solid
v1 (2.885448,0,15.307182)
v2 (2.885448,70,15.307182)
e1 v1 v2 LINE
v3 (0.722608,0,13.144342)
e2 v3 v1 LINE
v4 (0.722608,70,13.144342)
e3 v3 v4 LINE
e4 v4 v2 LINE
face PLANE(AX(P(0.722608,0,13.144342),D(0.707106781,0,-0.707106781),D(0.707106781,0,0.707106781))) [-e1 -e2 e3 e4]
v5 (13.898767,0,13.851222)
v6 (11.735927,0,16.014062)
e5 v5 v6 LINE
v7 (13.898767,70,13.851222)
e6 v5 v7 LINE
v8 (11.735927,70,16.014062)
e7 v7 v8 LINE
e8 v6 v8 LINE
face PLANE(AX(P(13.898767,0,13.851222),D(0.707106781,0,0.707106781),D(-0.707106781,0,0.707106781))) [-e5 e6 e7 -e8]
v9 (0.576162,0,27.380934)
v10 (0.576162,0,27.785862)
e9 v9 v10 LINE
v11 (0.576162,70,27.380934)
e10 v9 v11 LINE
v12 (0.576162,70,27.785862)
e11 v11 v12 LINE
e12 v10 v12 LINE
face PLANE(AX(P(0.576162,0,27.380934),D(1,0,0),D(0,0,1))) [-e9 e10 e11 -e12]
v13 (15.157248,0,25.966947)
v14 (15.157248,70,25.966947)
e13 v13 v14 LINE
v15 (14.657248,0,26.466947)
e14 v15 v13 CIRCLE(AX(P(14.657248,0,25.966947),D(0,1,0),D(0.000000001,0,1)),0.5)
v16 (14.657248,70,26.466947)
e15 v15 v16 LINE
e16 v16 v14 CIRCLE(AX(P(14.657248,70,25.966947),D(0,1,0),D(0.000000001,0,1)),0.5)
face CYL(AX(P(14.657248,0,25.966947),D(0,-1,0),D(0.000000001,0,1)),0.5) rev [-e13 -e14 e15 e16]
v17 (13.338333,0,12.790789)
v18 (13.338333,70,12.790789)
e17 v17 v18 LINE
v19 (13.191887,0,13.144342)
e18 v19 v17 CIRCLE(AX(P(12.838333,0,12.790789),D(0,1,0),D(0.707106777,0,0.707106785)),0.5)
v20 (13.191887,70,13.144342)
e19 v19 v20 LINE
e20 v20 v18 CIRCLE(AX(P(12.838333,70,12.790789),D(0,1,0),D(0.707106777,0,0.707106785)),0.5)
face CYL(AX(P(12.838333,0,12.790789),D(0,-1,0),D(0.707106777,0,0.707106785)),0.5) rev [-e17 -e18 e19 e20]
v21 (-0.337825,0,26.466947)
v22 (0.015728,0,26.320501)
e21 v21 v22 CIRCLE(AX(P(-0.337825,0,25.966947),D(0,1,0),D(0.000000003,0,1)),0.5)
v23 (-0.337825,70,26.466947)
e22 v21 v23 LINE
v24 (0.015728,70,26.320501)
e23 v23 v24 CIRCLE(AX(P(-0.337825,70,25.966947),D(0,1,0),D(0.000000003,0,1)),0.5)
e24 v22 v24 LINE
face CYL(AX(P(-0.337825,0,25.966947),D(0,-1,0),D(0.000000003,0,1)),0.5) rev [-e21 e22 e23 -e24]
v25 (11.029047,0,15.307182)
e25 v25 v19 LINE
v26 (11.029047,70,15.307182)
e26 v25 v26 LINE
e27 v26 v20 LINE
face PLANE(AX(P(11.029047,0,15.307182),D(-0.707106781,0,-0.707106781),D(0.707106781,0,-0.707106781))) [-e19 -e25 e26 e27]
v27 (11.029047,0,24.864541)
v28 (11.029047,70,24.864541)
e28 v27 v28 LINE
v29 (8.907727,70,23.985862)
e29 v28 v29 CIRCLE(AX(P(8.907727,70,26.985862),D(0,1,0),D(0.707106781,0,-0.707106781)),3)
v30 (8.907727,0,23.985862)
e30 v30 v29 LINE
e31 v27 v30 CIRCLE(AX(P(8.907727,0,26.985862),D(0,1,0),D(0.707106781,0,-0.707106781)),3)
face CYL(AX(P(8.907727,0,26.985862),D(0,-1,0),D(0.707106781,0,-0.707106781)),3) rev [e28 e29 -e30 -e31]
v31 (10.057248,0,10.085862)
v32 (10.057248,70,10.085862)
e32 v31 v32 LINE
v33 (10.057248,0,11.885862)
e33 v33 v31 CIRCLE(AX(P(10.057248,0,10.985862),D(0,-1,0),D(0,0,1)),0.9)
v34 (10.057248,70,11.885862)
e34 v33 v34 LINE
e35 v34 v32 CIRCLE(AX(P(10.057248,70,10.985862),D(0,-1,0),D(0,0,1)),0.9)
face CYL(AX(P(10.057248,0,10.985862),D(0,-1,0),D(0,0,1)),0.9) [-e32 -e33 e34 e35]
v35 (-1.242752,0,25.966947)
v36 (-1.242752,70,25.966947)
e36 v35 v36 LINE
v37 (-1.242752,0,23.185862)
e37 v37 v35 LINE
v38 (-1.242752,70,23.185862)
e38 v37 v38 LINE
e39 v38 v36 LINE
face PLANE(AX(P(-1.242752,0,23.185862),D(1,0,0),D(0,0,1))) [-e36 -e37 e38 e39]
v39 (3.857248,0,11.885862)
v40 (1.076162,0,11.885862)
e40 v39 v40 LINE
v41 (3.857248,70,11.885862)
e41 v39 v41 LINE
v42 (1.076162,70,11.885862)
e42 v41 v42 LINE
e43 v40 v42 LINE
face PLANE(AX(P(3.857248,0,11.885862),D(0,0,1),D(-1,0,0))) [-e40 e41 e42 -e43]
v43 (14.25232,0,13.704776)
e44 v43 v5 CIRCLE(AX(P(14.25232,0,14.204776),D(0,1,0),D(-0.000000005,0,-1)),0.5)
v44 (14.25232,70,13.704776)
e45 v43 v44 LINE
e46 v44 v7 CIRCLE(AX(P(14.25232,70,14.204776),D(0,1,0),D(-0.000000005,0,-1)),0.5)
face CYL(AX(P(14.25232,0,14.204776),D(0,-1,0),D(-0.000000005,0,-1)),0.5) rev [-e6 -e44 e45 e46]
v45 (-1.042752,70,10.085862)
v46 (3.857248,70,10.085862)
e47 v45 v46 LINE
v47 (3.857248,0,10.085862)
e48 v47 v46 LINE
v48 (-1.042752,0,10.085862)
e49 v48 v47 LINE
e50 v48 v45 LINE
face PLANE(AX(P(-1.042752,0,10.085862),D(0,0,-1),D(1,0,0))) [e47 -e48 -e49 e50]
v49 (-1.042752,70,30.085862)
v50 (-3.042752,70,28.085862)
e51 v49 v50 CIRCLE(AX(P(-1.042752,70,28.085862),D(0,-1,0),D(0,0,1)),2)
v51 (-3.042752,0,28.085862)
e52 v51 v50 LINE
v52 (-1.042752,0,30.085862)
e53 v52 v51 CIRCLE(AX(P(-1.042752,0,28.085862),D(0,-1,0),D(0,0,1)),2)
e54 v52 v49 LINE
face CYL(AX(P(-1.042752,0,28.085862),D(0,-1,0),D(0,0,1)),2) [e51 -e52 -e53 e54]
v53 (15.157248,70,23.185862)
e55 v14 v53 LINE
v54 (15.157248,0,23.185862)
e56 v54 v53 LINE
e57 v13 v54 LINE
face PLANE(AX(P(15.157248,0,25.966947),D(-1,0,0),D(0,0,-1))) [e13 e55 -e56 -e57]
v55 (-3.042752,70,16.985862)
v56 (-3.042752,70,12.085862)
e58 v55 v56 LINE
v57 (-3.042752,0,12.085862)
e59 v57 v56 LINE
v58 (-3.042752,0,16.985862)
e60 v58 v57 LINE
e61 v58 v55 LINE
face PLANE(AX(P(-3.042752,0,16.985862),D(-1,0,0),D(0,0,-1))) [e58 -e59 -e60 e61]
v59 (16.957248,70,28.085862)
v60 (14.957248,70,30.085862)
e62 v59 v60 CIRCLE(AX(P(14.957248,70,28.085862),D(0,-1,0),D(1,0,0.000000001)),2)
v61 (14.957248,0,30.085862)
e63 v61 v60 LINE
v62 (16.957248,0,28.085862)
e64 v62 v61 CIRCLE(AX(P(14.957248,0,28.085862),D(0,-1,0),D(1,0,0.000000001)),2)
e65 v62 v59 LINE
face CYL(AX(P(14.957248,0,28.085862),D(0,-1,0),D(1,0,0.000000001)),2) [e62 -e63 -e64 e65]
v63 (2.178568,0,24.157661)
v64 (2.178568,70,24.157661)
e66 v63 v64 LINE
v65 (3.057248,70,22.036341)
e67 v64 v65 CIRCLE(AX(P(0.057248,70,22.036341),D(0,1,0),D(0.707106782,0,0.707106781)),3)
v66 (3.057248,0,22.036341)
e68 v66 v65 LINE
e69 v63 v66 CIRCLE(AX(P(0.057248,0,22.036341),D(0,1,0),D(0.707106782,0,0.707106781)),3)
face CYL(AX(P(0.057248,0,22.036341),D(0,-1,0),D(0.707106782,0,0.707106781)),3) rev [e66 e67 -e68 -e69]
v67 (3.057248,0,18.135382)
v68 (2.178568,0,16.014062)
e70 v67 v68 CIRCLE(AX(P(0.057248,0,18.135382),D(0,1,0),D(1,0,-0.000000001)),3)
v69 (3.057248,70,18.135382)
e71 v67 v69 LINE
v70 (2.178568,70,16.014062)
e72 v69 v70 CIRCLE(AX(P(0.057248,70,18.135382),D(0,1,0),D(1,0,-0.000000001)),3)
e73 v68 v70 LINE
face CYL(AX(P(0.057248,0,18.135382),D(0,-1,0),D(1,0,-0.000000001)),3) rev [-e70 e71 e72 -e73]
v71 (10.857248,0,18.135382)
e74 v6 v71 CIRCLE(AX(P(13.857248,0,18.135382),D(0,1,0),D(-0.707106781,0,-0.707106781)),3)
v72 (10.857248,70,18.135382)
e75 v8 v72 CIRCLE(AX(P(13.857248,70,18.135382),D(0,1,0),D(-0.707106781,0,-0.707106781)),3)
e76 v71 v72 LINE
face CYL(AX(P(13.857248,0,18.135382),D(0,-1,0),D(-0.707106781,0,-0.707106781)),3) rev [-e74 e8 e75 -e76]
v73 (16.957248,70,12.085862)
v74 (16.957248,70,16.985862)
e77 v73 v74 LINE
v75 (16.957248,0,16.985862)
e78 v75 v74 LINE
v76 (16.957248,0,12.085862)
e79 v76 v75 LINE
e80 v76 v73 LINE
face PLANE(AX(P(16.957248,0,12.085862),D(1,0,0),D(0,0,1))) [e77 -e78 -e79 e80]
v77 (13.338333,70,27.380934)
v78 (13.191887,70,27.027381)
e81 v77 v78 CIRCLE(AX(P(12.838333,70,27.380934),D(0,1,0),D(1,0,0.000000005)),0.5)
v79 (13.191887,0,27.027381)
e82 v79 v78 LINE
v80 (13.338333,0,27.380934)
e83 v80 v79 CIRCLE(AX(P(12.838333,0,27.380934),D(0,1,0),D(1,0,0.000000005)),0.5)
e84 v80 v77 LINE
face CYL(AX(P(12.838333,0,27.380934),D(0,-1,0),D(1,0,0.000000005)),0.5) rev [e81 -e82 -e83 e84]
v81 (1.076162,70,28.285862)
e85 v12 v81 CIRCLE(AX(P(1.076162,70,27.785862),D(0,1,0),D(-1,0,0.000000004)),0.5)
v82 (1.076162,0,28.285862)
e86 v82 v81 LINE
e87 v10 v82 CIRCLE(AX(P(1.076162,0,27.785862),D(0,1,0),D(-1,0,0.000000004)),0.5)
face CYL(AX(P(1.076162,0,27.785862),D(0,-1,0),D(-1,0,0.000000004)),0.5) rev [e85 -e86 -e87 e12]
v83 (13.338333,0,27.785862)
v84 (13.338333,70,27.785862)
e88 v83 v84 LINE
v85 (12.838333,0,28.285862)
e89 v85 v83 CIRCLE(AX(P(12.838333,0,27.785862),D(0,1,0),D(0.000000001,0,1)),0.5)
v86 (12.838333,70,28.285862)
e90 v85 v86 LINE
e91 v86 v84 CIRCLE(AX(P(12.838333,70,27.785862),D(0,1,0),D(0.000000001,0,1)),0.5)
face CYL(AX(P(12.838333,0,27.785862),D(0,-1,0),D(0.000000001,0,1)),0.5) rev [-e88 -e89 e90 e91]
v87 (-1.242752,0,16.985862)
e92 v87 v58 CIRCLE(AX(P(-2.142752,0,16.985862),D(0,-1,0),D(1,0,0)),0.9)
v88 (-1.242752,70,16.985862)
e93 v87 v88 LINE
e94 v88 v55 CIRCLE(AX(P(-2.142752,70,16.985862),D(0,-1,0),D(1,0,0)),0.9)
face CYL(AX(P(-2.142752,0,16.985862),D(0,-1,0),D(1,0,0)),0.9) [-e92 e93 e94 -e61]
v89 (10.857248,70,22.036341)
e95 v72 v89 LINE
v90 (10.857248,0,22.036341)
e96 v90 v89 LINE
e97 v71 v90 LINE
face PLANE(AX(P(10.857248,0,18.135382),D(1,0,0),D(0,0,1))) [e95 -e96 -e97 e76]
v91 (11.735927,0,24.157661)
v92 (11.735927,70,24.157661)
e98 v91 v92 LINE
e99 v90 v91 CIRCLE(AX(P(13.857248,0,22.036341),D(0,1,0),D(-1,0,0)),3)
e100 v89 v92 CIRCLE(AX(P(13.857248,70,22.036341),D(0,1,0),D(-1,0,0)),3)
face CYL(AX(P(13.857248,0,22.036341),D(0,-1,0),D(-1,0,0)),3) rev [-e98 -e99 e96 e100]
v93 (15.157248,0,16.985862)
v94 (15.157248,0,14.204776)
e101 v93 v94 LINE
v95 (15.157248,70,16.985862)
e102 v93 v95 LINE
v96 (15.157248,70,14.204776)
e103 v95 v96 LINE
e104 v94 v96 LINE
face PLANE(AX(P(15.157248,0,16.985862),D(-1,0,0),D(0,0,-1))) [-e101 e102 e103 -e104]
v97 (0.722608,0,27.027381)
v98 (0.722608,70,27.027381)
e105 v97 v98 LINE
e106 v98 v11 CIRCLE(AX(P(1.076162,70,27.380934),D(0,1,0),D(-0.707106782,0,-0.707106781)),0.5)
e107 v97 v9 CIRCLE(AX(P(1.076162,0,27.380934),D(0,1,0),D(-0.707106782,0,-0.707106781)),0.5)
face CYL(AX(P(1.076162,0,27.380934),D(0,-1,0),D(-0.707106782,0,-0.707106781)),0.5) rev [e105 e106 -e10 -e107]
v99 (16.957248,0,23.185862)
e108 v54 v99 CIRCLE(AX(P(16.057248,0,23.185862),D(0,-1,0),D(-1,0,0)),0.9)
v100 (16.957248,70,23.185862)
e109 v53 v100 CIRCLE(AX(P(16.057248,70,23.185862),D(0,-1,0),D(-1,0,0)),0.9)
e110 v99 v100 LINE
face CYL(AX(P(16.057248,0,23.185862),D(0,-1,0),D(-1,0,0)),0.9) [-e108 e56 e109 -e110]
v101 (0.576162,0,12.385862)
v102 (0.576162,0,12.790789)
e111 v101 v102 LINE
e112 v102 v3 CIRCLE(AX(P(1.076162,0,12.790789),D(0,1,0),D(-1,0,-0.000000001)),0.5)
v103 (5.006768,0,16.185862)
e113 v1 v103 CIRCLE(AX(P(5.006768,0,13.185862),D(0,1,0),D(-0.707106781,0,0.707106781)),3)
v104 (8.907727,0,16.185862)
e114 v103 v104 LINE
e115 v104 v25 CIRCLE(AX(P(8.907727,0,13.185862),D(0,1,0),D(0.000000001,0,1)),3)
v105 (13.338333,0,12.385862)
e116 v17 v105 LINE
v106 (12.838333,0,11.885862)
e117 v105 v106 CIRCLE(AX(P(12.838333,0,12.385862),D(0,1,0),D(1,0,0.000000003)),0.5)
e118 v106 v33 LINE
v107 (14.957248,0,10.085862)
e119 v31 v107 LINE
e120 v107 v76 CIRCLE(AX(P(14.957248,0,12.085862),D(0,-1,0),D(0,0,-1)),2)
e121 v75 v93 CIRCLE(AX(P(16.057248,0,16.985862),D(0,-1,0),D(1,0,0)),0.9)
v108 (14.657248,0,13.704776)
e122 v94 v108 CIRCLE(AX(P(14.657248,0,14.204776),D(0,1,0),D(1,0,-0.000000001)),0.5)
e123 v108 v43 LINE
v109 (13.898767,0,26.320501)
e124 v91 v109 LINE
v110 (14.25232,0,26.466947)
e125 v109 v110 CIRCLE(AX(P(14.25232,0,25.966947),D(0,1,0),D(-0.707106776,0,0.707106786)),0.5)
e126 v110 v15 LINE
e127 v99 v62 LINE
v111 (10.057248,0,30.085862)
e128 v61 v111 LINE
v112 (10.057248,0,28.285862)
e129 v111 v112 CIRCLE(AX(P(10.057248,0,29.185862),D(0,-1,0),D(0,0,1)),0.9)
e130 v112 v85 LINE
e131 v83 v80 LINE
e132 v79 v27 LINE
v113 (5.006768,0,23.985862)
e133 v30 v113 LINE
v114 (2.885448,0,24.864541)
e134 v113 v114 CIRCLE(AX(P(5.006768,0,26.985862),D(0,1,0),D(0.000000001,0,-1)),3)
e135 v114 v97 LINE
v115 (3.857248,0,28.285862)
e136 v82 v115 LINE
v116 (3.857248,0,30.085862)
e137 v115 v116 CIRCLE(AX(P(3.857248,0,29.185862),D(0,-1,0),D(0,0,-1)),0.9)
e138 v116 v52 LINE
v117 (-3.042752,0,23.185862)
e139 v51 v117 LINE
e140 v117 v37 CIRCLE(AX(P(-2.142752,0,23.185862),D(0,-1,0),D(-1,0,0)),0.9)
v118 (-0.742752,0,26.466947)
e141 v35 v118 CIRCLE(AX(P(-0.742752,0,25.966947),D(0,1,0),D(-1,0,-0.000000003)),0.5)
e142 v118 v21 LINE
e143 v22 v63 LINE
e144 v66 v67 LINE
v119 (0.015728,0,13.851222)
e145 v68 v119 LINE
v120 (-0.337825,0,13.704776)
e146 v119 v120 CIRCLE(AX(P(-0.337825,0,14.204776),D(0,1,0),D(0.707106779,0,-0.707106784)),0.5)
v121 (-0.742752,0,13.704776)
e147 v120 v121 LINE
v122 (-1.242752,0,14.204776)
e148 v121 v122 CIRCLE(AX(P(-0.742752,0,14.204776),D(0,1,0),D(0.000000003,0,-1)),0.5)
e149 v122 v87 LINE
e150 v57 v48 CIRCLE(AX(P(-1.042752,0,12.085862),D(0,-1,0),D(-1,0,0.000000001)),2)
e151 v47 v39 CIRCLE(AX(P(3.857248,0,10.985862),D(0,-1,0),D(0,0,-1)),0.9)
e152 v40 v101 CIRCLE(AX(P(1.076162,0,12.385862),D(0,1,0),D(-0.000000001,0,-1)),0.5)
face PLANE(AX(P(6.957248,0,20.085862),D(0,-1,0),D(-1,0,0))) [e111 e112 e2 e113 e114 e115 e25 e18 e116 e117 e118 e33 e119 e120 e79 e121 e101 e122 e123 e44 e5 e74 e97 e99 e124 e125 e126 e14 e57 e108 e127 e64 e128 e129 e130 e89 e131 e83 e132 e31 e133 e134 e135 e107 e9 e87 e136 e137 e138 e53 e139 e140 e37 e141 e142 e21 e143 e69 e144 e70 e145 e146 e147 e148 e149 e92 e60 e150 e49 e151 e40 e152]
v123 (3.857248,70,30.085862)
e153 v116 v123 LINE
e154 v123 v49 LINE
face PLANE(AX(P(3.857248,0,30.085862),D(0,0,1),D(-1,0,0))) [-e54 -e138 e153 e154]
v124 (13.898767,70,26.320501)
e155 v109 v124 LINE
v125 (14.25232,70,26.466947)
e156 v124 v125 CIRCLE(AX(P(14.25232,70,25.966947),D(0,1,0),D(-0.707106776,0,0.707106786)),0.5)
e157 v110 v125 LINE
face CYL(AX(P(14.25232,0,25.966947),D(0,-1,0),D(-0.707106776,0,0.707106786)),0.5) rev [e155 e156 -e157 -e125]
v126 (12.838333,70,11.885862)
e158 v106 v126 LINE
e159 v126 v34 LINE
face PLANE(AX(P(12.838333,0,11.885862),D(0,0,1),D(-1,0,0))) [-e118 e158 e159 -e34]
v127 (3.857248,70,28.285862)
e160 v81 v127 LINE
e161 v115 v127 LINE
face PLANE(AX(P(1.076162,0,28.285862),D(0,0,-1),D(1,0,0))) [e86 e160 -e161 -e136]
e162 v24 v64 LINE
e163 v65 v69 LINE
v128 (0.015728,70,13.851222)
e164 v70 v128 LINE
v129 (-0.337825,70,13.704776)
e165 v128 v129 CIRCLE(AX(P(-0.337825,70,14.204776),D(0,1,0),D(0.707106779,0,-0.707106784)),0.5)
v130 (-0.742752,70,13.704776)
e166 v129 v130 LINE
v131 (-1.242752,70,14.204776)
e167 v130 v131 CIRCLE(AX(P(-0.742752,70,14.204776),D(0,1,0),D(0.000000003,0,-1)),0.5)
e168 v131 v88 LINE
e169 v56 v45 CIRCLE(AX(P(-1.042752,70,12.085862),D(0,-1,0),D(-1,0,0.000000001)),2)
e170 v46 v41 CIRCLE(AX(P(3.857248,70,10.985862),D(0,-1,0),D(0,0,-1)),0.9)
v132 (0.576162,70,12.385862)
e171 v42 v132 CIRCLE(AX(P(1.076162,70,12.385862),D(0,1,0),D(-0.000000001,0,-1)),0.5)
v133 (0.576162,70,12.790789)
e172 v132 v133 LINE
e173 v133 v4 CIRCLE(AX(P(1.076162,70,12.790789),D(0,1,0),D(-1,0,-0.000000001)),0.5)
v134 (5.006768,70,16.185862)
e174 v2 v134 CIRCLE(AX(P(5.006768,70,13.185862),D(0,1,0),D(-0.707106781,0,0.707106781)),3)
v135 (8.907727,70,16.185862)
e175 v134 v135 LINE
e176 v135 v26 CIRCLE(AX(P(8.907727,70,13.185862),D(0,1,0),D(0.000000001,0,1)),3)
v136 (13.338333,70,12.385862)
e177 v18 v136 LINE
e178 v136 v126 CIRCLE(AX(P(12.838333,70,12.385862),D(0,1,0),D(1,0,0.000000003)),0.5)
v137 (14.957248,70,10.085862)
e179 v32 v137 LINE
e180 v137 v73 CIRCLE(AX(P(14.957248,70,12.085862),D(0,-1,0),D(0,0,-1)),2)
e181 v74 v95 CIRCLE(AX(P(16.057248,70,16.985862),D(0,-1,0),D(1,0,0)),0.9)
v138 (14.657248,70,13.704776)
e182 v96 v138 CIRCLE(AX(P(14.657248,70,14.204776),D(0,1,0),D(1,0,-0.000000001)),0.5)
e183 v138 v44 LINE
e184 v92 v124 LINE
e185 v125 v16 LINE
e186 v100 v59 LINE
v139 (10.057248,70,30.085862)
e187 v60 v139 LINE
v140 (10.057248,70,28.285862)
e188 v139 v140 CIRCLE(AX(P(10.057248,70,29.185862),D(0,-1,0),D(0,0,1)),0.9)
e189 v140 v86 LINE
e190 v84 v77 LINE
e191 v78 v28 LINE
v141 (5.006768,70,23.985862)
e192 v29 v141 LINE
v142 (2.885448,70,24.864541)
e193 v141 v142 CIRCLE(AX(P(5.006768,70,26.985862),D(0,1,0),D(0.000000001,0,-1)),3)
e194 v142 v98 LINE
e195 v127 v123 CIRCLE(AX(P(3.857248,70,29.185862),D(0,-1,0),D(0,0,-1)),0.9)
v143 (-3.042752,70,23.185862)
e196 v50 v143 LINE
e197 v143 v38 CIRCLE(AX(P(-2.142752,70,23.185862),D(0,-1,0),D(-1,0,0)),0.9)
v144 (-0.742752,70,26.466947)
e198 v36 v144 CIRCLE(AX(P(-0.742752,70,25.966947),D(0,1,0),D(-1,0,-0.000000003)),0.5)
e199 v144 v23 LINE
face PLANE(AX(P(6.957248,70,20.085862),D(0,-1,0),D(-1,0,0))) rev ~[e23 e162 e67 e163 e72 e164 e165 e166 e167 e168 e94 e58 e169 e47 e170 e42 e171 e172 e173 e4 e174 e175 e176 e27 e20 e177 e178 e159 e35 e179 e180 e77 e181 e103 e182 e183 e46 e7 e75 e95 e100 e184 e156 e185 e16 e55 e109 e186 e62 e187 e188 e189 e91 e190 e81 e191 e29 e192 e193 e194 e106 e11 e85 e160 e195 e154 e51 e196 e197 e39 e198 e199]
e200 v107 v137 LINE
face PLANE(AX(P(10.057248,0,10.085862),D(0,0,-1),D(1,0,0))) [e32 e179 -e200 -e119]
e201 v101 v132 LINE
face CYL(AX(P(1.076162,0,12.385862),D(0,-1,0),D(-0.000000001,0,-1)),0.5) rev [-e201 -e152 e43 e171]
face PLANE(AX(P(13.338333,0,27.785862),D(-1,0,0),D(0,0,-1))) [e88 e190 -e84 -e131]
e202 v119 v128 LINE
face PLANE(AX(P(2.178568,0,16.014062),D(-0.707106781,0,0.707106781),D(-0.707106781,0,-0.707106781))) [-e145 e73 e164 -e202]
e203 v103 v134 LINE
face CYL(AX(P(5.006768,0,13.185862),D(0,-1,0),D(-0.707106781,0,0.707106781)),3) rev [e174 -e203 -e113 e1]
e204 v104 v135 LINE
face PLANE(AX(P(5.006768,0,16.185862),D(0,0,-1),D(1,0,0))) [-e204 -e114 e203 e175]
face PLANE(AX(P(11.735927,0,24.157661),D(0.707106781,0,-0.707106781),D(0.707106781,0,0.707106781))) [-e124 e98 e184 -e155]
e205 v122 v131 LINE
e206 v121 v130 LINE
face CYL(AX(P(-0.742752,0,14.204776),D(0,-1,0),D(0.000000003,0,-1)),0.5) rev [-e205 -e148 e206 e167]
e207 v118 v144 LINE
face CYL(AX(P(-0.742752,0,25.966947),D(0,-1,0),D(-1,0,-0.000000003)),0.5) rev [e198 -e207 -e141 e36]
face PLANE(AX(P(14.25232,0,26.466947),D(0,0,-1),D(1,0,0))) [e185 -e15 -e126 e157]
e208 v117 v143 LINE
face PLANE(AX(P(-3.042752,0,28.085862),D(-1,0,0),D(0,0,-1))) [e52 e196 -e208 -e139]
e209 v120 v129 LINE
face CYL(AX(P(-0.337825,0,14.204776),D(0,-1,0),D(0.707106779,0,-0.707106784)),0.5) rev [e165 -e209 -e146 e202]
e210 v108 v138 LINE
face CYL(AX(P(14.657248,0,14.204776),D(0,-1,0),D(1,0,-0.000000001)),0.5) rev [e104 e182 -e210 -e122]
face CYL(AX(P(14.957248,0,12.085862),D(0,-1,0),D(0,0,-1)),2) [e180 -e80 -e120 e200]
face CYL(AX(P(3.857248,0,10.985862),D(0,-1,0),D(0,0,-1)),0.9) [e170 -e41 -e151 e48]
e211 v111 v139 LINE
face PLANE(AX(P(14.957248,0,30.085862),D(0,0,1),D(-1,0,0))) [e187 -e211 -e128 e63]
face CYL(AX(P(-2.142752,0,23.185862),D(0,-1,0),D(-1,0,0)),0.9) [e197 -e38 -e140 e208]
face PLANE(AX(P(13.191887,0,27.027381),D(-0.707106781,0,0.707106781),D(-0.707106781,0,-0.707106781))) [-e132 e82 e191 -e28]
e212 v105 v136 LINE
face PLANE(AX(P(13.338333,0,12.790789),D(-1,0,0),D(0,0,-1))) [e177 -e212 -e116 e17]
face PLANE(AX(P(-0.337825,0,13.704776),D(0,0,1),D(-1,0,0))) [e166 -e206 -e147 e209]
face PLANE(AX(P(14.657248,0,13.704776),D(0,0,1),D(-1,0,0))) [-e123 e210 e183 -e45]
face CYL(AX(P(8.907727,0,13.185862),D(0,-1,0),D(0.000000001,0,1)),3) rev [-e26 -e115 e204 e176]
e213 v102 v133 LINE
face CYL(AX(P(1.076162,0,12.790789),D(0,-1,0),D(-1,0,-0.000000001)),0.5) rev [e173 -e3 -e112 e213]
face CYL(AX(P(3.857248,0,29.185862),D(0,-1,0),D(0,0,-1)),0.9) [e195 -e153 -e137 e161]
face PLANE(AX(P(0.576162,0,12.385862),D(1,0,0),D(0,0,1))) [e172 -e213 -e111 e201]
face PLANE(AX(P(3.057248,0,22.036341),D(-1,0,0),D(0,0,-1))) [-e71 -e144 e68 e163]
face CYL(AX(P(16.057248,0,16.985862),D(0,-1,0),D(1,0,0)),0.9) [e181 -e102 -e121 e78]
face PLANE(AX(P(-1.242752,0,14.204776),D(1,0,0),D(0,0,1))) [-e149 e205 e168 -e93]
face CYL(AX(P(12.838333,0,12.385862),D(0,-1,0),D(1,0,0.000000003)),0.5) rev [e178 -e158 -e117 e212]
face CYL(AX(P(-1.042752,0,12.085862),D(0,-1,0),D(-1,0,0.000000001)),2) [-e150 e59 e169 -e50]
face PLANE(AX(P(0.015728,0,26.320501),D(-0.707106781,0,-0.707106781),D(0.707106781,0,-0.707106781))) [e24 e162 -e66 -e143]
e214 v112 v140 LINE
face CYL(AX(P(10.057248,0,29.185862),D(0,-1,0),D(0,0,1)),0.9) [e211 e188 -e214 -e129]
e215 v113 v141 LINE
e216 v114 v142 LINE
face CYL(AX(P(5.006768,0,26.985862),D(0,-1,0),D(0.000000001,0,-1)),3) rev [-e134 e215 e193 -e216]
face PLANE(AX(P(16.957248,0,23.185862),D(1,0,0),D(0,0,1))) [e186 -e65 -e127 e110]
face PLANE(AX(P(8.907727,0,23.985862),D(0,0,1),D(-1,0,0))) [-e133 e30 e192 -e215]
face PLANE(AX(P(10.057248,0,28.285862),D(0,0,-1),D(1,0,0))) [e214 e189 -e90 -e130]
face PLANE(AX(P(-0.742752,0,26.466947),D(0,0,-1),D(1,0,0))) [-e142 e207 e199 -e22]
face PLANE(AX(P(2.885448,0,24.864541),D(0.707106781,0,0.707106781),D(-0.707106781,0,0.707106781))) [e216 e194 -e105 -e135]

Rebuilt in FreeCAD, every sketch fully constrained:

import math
import FreeCAD as App
import Part
import Sketcher
Q = App.Units.Quantity

doc = App.newDocument("Part")
body = doc.addObject("PartDesign::Body", "Body")

# Sketch on XZ plane
sketch1 = body.newObject("Sketcher::SketchObject", "Sketch")
sketch1.AttachmentSupport = (doc.getObject("XZ_Plane"), [""])
sketch1.MapMode = "FlatFace"
sketch1.addGeometry(Part.LineSegment(App.Vector(3.86, 10.09, 0), App.Vector(-1.04, 10.09, 0)), False)
sketch1.addGeometry(Part.ArcOfCircle(Part.Circle(App.Vector(-1.04, 12.09, 0), App.Vector(0, 0, 1), 2), math.radians(180), math.radians(270)), False)
sketch1.addGeometry(Part.LineSegment(App.Vector(-3.04, 12.09, 0), App.Vector(-3.04, 16.99, 0)), False)
sketch1.addGeometry(Part.ArcOfCircle(Part.Circle(App.Vector(-2.14, 16.99, 0), App.Vector(0, 0, 1), 0.9), math.radians(0), math.radians(180)), False)
sketch1.addGeometry(Part.LineSegment(App.Vector(-1.24, 16.99, 0), App.Vector(-1.24, 14.2, 0)), False)
sketch1.addGeometry(Part.ArcOfCircle(Part.Circle(App.Vector(-0.74, 14.2, 0), App.Vector(0, 0, 1), 0.5), math.radians(180), math.radians(270)), False)
sketch1.addGeometry(Part.LineSegment(App.Vector(-0.74, 13.7, 0), App.Vector(-0.34, 13.7, 0)), False)
sketch1.addGeometry(Part.ArcOfCircle(Part.Circle(App.Vector(-0.34, 14.2, 0), App.Vector(0, 0, 1), 0.5), math.radians(-90), math.radians(-45)), False)
sketch1.addGeometry(Part.LineSegment(App.Vector(0.02, 13.85, 0), App.Vector(2.18, 16.01, 0)), False)
sketch1.addGeometry(Part.ArcOfCircle(Part.Circle(App.Vector(0.06, 18.14, 0), App.Vector(0, 0, 1), 3), math.radians(-45), math.radians(0)), False)
sketch1.addGeometry(Part.LineSegment(App.Vector(3.06, 18.14, 0), App.Vector(3.06, 22.04, 0)), False)
sketch1.addGeometry(Part.ArcOfCircle(Part.Circle(App.Vector(0.06, 22.04, 0), App.Vector(0, 0, 1), 3), math.radians(0), math.radians(45)), False)
sketch1.addGeometry(Part.LineSegment(App.Vector(2.18, 24.16, 0), App.Vector(0.02, 26.32, 0)), False)
sketch1.addGeometry(Part.ArcOfCircle(Part.Circle(App.Vector(-0.34, 25.97, 0), App.Vector(0, 0, 1), 0.5), math.radians(45), math.radians(90)), False)
sketch1.addGeometry(Part.LineSegment(App.Vector(-0.34, 26.47, 0), App.Vector(-0.74, 26.47, 0)), False)
sketch1.addGeometry(Part.ArcOfCircle(Part.Circle(App.Vector(-0.74, 25.97, 0), App.Vector(0, 0, 1), 0.5), math.radians(90), math.radians(180)), False)
sketch1.addGeometry(Part.LineSegment(App.Vector(-1.24, 25.97, 0), App.Vector(-1.24, 23.19, 0)), False)
sketch1.addGeometry(Part.ArcOfCircle(Part.Circle(App.Vector(-2.14, 23.19, 0), App.Vector(0, 0, 1), 0.9), math.radians(180), math.radians(360)), False)
sketch1.addGeometry(Part.LineSegment(App.Vector(-3.04, 23.19, 0), App.Vector(-3.04, 28.09, 0)), False)
sketch1.addGeometry(Part.ArcOfCircle(Part.Circle(App.Vector(-1.04, 28.09, 0), App.Vector(0, 0, 1), 2), math.radians(90), math.radians(180)), False)
sketch1.addGeometry(Part.LineSegment(App.Vector(-1.04, 30.09, 0), App.Vector(3.86, 30.09, 0)), False)
sketch1.addGeometry(Part.ArcOfCircle(Part.Circle(App.Vector(3.86, 29.19, 0), App.Vector(0, 0, 1), 0.9), math.radians(-90), math.radians(90)), False)
sketch1.addGeometry(Part.LineSegment(App.Vector(3.86, 28.29, 0), App.Vector(1.08, 28.29, 0)), False)
sketch1.addGeometry(Part.ArcOfCircle(Part.Circle(App.Vector(1.08, 27.79, 0), App.Vector(0, 0, 1), 0.5), math.radians(90), math.radians(180)), False)
sketch1.addGeometry(Part.LineSegment(App.Vector(0.58, 27.79, 0), App.Vector(0.58, 27.38, 0)), False)
sketch1.addGeometry(Part.ArcOfCircle(Part.Circle(App.Vector(1.08, 27.38, 0), App.Vector(0, 0, 1), 0.5), math.radians(-180), math.radians(-135)), False)
sketch1.addGeometry(Part.LineSegment(App.Vector(0.72, 27.03, 0), App.Vector(2.89, 24.86, 0)), False)
sketch1.addGeometry(Part.ArcOfCircle(Part.Circle(App.Vector(5.01, 26.99, 0), App.Vector(0, 0, 1), 3), math.radians(-135), math.radians(-90)), False)
sketch1.addGeometry(Part.LineSegment(App.Vector(5.01, 23.99, 0), App.Vector(8.91, 23.99, 0)), False)
sketch1.addGeometry(Part.ArcOfCircle(Part.Circle(App.Vector(8.91, 26.99, 0), App.Vector(0, 0, 1), 3), math.radians(-90), math.radians(-45)), False)
sketch1.addGeometry(Part.LineSegment(App.Vector(11.03, 24.86, 0), App.Vector(13.19, 27.03, 0)), False)
sketch1.addGeometry(Part.ArcOfCircle(Part.Circle(App.Vector(12.84, 27.38, 0), App.Vector(0, 0, 1), 0.5), math.radians(-45), math.radians(0)), False)
sketch1.addGeometry(Part.LineSegment(App.Vector(13.34, 27.38, 0), App.Vector(13.34, 27.79, 0)), False)
sketch1.addGeometry(Part.ArcOfCircle(Part.Circle(App.Vector(12.84, 27.79, 0), App.Vector(0, 0, 1), 0.5), math.radians(0), math.radians(90)), False)
sketch1.addGeometry(Part.LineSegment(App.Vector(12.84, 28.29, 0), App.Vector(10.06, 28.29, 0)), False)
sketch1.addGeometry(Part.ArcOfCircle(Part.Circle(App.Vector(10.06, 29.19, 0), App.Vector(0, 0, 1), 0.9), math.radians(90), math.radians(270)), False)
sketch1.addGeometry(Part.LineSegment(App.Vector(10.06, 30.09, 0), App.Vector(14.96, 30.09, 0)), False)
sketch1.addGeometry(Part.ArcOfCircle(Part.Circle(App.Vector(14.96, 28.09, 0), App.Vector(0, 0, 1), 2), math.radians(0), math.radians(90)), False)
sketch1.addGeometry(Part.LineSegment(App.Vector(16.96, 28.09, 0), App.Vector(16.96, 23.19, 0)), False)
sketch1.addGeometry(Part.ArcOfCircle(Part.Circle(App.Vector(16.06, 23.19, 0), App.Vector(0, 0, 1), 0.9), math.radians(180), math.radians(360)), False)
sketch1.addGeometry(Part.LineSegment(App.Vector(15.16, 23.19, 0), App.Vector(15.16, 25.97, 0)), False)
sketch1.addGeometry(Part.ArcOfCircle(Part.Circle(App.Vector(14.66, 25.97, 0), App.Vector(0, 0, 1), 0.5), math.radians(0), math.radians(90)), False)
sketch1.addGeometry(Part.LineSegment(App.Vector(14.66, 26.47, 0), App.Vector(14.25, 26.47, 0)), False)
sketch1.addGeometry(Part.ArcOfCircle(Part.Circle(App.Vector(14.25, 25.97, 0), App.Vector(0, 0, 1), 0.5), math.radians(90), math.radians(135)), False)
sketch1.addGeometry(Part.LineSegment(App.Vector(13.9, 26.32, 0), App.Vector(11.74, 24.16, 0)), False)
sketch1.addGeometry(Part.ArcOfCircle(Part.Circle(App.Vector(13.86, 22.04, 0), App.Vector(0, 0, 1), 3), math.radians(135), math.radians(180)), False)
sketch1.addGeometry(Part.LineSegment(App.Vector(10.86, 22.04, 0), App.Vector(10.86, 18.14, 0)), False)
sketch1.addGeometry(Part.ArcOfCircle(Part.Circle(App.Vector(13.86, 18.14, 0), App.Vector(0, 0, 1), 3), math.radians(180), math.radians(225)), False)
sketch1.addGeometry(Part.LineSegment(App.Vector(11.74, 16.01, 0), App.Vector(13.9, 13.85, 0)), False)
sketch1.addGeometry(Part.ArcOfCircle(Part.Circle(App.Vector(14.25, 14.2, 0), App.Vector(0, 0, 1), 0.5), math.radians(-135), math.radians(-90)), False)
sketch1.addGeometry(Part.LineSegment(App.Vector(14.25, 13.7, 0), App.Vector(14.66, 13.7, 0)), False)
sketch1.addGeometry(Part.ArcOfCircle(Part.Circle(App.Vector(14.66, 14.2, 0), App.Vector(0, 0, 1), 0.5), math.radians(-90), math.radians(0)), False)
sketch1.addGeometry(Part.LineSegment(App.Vector(15.16, 14.2, 0), App.Vector(15.16, 16.99, 0)), False)
sketch1.addGeometry(Part.ArcOfCircle(Part.Circle(App.Vector(16.06, 16.99, 0), App.Vector(0, 0, 1), 0.9), math.radians(0), math.radians(180)), False)
sketch1.addGeometry(Part.LineSegment(App.Vector(16.96, 16.99, 0), App.Vector(16.96, 12.09, 0)), False)
sketch1.addGeometry(Part.ArcOfCircle(Part.Circle(App.Vector(14.96, 12.09, 0), App.Vector(0, 0, 1), 2), math.radians(-90), math.radians(0)), False)
sketch1.addGeometry(Part.LineSegment(App.Vector(14.96, 10.09, 0), App.Vector(10.06, 10.09, 0)), False)
sketch1.addGeometry(Part.ArcOfCircle(Part.Circle(App.Vector(10.06, 10.99, 0), App.Vector(0, 0, 1), 0.9), math.radians(90), math.radians(270)), False)
sketch1.addGeometry(Part.LineSegment(App.Vector(10.06, 11.89, 0), App.Vector(12.84, 11.89, 0)), False)
sketch1.addGeometry(Part.ArcOfCircle(Part.Circle(App.Vector(12.84, 12.39, 0), App.Vector(0, 0, 1), 0.5), math.radians(-90), math.radians(0)), False)
sketch1.addGeometry(Part.LineSegment(App.Vector(13.34, 12.39, 0), App.Vector(13.34, 12.79, 0)), False)
sketch1.addGeometry(Part.ArcOfCircle(Part.Circle(App.Vector(12.84, 12.79, 0), App.Vector(0, 0, 1), 0.5), math.radians(0), math.radians(45)), False)
sketch1.addGeometry(Part.LineSegment(App.Vector(13.19, 13.14, 0), App.Vector(11.03, 15.31, 0)), False)
sketch1.addGeometry(Part.ArcOfCircle(Part.Circle(App.Vector(8.91, 13.19, 0), App.Vector(0, 0, 1), 3), math.radians(45), math.radians(90)), False)
sketch1.addGeometry(Part.LineSegment(App.Vector(8.91, 16.19, 0), App.Vector(5.01, 16.19, 0)), False)
sketch1.addGeometry(Part.ArcOfCircle(Part.Circle(App.Vector(5.01, 13.19, 0), App.Vector(0, 0, 1), 3), math.radians(90), math.radians(135)), False)
sketch1.addGeometry(Part.LineSegment(App.Vector(2.89, 15.31, 0), App.Vector(0.72, 13.14, 0)), False)
sketch1.addGeometry(Part.ArcOfCircle(Part.Circle(App.Vector(1.08, 12.79, 0), App.Vector(0, 0, 1), 0.5), math.radians(135), math.radians(180)), False)
sketch1.addGeometry(Part.LineSegment(App.Vector(0.58, 12.79, 0), App.Vector(0.58, 12.39, 0)), False)
sketch1.addGeometry(Part.ArcOfCircle(Part.Circle(App.Vector(1.08, 12.39, 0), App.Vector(0, 0, 1), 0.5), math.radians(180), math.radians(270)), False)
sketch1.addGeometry(Part.LineSegment(App.Vector(1.08, 11.89, 0), App.Vector(3.86, 11.89, 0)), False)
sketch1.addGeometry(Part.ArcOfCircle(Part.Circle(App.Vector(3.86, 10.99, 0), App.Vector(0, 0, 1), 0.9), math.radians(-90), math.radians(90)), False)
sketch1.addConstraint(Sketcher.Constraint("Tangent", 0, 2, 1, 2))
sketch1.addConstraint(Sketcher.Constraint("Tangent", 1, 1, 2, 1))
sketch1.addConstraint(Sketcher.Constraint("Tangent", 2, 2, 3, 2))
sketch1.addConstraint(Sketcher.Constraint("Tangent", 3, 1, 4, 1))
sketch1.addConstraint(Sketcher.Constraint("Tangent", 4, 2, 5, 1))
sketch1.addConstraint(Sketcher.Constraint("Tangent", 5, 2, 6, 1))
sketch1.addConstraint(Sketcher.Constraint("Tangent", 6, 2, 7, 1))
sketch1.addConstraint(Sketcher.Constraint("Tangent", 7, 2, 8, 1))
sketch1.addConstraint(Sketcher.Constraint("Tangent", 8, 2, 9, 1))
sketch1.addConstraint(Sketcher.Constraint("Tangent", 9, 2, 10, 1))
sketch1.addConstraint(Sketcher.Constraint("Tangent", 10, 2, 11, 1))
sketch1.addConstraint(Sketcher.Constraint("Tangent", 11, 2, 12, 1))
sketch1.addConstraint(Sketcher.Constraint("Tangent", 12, 2, 13, 1))
sketch1.addConstraint(Sketcher.Constraint("Tangent", 13, 2, 14, 1))
sketch1.addConstraint(Sketcher.Constraint("Tangent", 14, 2, 15, 1))
sketch1.addConstraint(Sketcher.Constraint("Tangent", 15, 2, 16, 1))
sketch1.addConstraint(Sketcher.Constraint("Tangent", 16, 2, 17, 2))
sketch1.addConstraint(Sketcher.Constraint("Tangent", 17, 1, 18, 1))
sketch1.addConstraint(Sketcher.Constraint("Tangent", 18, 2, 19, 2))
sketch1.addConstraint(Sketcher.Constraint("Tangent", 19, 1, 20, 1))
sketch1.addConstraint(Sketcher.Constraint("Tangent", 20, 2, 21, 2))
sketch1.addConstraint(Sketcher.Constraint("Tangent", 21, 1, 22, 1))
sketch1.addConstraint(Sketcher.Constraint("Tangent", 22, 2, 23, 1))
sketch1.addConstraint(Sketcher.Constraint("Tangent", 23, 2, 24, 1))
sketch1.addConstraint(Sketcher.Constraint("Tangent", 24, 2, 25, 1))
sketch1.addConstraint(Sketcher.Constraint("Tangent", 25, 2, 26, 1))
sketch1.addConstraint(Sketcher.Constraint("Tangent", 26, 2, 27, 1))
sketch1.addConstraint(Sketcher.Constraint("Tangent", 27, 2, 28, 1))
sketch1.addConstraint(Sketcher.Constraint("Tangent", 28, 2, 29, 1))
sketch1.addConstraint(Sketcher.Constraint("Tangent", 29, 2, 30, 1))
sketch1.addConstraint(Sketcher.Constraint("Tangent", 30, 2, 31, 1))
sketch1.addConstraint(Sketcher.Constraint("Tangent", 31, 2, 32, 1))
sketch1.addConstraint(Sketcher.Constraint("Tangent", 32, 2, 33, 1))
sketch1.addConstraint(Sketcher.Constraint("Tangent", 33, 2, 34, 1))
sketch1.addConstraint(Sketcher.Constraint("Tangent", 34, 2, 35, 2))
sketch1.addConstraint(Sketcher.Constraint("Tangent", 35, 1, 36, 1))
sketch1.addConstraint(Sketcher.Constraint("Tangent", 36, 2, 37, 2))
sketch1.addConstraint(Sketcher.Constraint("Tangent", 37, 1, 38, 1))
sketch1.addConstraint(Sketcher.Constraint("Tangent", 38, 2, 39, 2))
sketch1.addConstraint(Sketcher.Constraint("Tangent", 39, 1, 40, 1))
sketch1.addConstraint(Sketcher.Constraint("Tangent", 40, 2, 41, 1))
sketch1.addConstraint(Sketcher.Constraint("Tangent", 41, 2, 42, 1))
sketch1.addConstraint(Sketcher.Constraint("Tangent", 42, 2, 43, 1))
sketch1.addConstraint(Sketcher.Constraint("Tangent", 43, 2, 44, 1))
sketch1.addConstraint(Sketcher.Constraint("Tangent", 44, 2, 45, 1))
sketch1.addConstraint(Sketcher.Constraint("Tangent", 45, 2, 46, 1))
sketch1.addConstraint(Sketcher.Constraint("Tangent", 46, 2, 47, 1))
sketch1.addConstraint(Sketcher.Constraint("Tangent", 47, 2, 48, 1))
sketch1.addConstraint(Sketcher.Constraint("Tangent", 48, 2, 49, 1))
sketch1.addConstraint(Sketcher.Constraint("Tangent", 49, 2, 50, 1))
sketch1.addConstraint(Sketcher.Constraint("Tangent", 50, 2, 51, 1))
sketch1.addConstraint(Sketcher.Constraint("Tangent", 51, 2, 52, 1))
sketch1.addConstraint(Sketcher.Constraint("Tangent", 52, 2, 53, 2))
sketch1.addConstraint(Sketcher.Constraint("Tangent", 53, 1, 54, 1))
sketch1.addConstraint(Sketcher.Constraint("Tangent", 54, 2, 55, 2))
sketch1.addConstraint(Sketcher.Constraint("Tangent", 55, 1, 56, 1))
sketch1.addConstraint(Sketcher.Constraint("Tangent", 56, 2, 57, 2))
sketch1.addConstraint(Sketcher.Constraint("Tangent", 57, 1, 58, 1))
sketch1.addConstraint(Sketcher.Constraint("Tangent", 58, 2, 59, 1))
sketch1.addConstraint(Sketcher.Constraint("Tangent", 59, 2, 60, 1))
sketch1.addConstraint(Sketcher.Constraint("Tangent", 60, 2, 61, 1))
sketch1.addConstraint(Sketcher.Constraint("Tangent", 61, 2, 62, 1))
sketch1.addConstraint(Sketcher.Constraint("Tangent", 62, 2, 63, 1))
sketch1.addConstraint(Sketcher.Constraint("Tangent", 63, 2, 64, 1))
sketch1.addConstraint(Sketcher.Constraint("Tangent", 64, 2, 65, 1))
sketch1.addConstraint(Sketcher.Constraint("Tangent", 65, 2, 66, 1))
sketch1.addConstraint(Sketcher.Constraint("Tangent", 66, 2, 67, 1))
sketch1.addConstraint(Sketcher.Constraint("Tangent", 67, 2, 68, 1))
sketch1.addConstraint(Sketcher.Constraint("Tangent", 68, 2, 69, 1))
sketch1.addConstraint(Sketcher.Constraint("Tangent", 69, 2, 70, 1))
sketch1.addConstraint(Sketcher.Constraint("Tangent", 70, 2, 71, 2))
sketch1.addConstraint(Sketcher.Constraint("Tangent", 71, 1, 0, 1))
sketch1.addConstraint(Sketcher.Constraint("Horizontal", 0))
sketch1.addConstraint(Sketcher.Constraint("Vertical", 2))
sketch1.addConstraint(Sketcher.Constraint("Vertical", 4))
sketch1.addConstraint(Sketcher.Constraint("Horizontal", 6))
sketch1.addConstraint(Sketcher.Constraint("Vertical", 10))
sketch1.addConstraint(Sketcher.Constraint("Horizontal", 14))
sketch1.addConstraint(Sketcher.Constraint("Vertical", 16))
sketch1.addConstraint(Sketcher.Constraint("Vertical", 18))
sketch1.addConstraint(Sketcher.Constraint("Horizontal", 20))
sketch1.addConstraint(Sketcher.Constraint("Horizontal", 22))
sketch1.addConstraint(Sketcher.Constraint("Vertical", 24))
sketch1.addConstraint(Sketcher.Constraint("Horizontal", 28))
sketch1.addConstraint(Sketcher.Constraint("Vertical", 32))
sketch1.addConstraint(Sketcher.Constraint("Horizontal", 34))
sketch1.addConstraint(Sketcher.Constraint("Horizontal", 36))
sketch1.addConstraint(Sketcher.Constraint("Vertical", 38))
sketch1.addConstraint(Sketcher.Constraint("Vertical", 40))
sketch1.addConstraint(Sketcher.Constraint("Horizontal", 42))
sketch1.addConstraint(Sketcher.Constraint("Vertical", 46))
sketch1.addConstraint(Sketcher.Constraint("Horizontal", 50))
sketch1.addConstraint(Sketcher.Constraint("Vertical", 52))
sketch1.addConstraint(Sketcher.Constraint("Vertical", 54))
sketch1.addConstraint(Sketcher.Constraint("Horizontal", 56))
sketch1.addConstraint(Sketcher.Constraint("Horizontal", 58))
sketch1.addConstraint(Sketcher.Constraint("Vertical", 60))
sketch1.addConstraint(Sketcher.Constraint("Horizontal", 64))
sketch1.addConstraint(Sketcher.Constraint("Vertical", 68))
sketch1.addConstraint(Sketcher.Constraint("Horizontal", 70))
sketch1.addConstraint(Sketcher.Constraint("Equal", 5, 7))
sketch1.addConstraint(Sketcher.Constraint("Equal", 9, 11))
sketch1.addConstraint(Sketcher.Constraint("Equal", 7, 13))
sketch1.addConstraint(Sketcher.Constraint("Equal", 13, 15))
sketch1.addConstraint(Sketcher.Constraint("Equal", 3, 17))
sketch1.addConstraint(Sketcher.Constraint("Equal", 1, 19))
sketch1.addConstraint(Sketcher.Constraint("Equal", 17, 21))
sketch1.addConstraint(Sketcher.Constraint("Equal", 15, 23))
sketch1.addConstraint(Sketcher.Constraint("Equal", 23, 25))
sketch1.addConstraint(Sketcher.Constraint("Equal", 11, 27))
sketch1.addConstraint(Sketcher.Constraint("Equal", 27, 29))
sketch1.addConstraint(Sketcher.Constraint("Equal", 25, 31))
sketch1.addConstraint(Sketcher.Constraint("Equal", 31, 33))
sketch1.addConstraint(Sketcher.Constraint("Equal", 21, 35))
sketch1.addConstraint(Sketcher.Constraint("Equal", 19, 37))
sketch1.addConstraint(Sketcher.Constraint("Equal", 35, 39))
sketch1.addConstraint(Sketcher.Constraint("Equal", 33, 41))
sketch1.addConstraint(Sketcher.Constraint("Equal", 41, 43))
sketch1.addConstraint(Sketcher.Constraint("Equal", 29, 45))
sketch1.addConstraint(Sketcher.Constraint("Equal", 45, 47))
sketch1.addConstraint(Sketcher.Constraint("Equal", 43, 49))
sketch1.addConstraint(Sketcher.Constraint("Equal", 49, 51))
sketch1.addConstraint(Sketcher.Constraint("Equal", 39, 53))
sketch1.addConstraint(Sketcher.Constraint("Equal", 37, 55))
sketch1.addConstraint(Sketcher.Constraint("Equal", 53, 57))
sketch1.addConstraint(Sketcher.Constraint("Equal", 51, 59))
sketch1.addConstraint(Sketcher.Constraint("Equal", 59, 61))
sketch1.addConstraint(Sketcher.Constraint("Equal", 47, 63))
sketch1.addConstraint(Sketcher.Constraint("Equal", 63, 65))
sketch1.addConstraint(Sketcher.Constraint("Equal", 61, 67))
sketch1.addConstraint(Sketcher.Constraint("Equal", 67, 69))
sketch1.addConstraint(Sketcher.Constraint("Equal", 57, 71))
sketch1.addConstraint(Sketcher.Constraint("Perpendicular", 8, 12))
sketch1.addConstraint(Sketcher.Constraint("Parallel", 12, 26))
sketch1.addConstraint(Sketcher.Constraint("Perpendicular", 26, 30))
sketch1.addConstraint(Sketcher.Constraint("Parallel", 30, 44))
sketch1.addConstraint(Sketcher.Constraint("Perpendicular", 44, 48))
sketch1.addConstraint(Sketcher.Constraint("Parallel", 48, 62))
sketch1.addConstraint(Sketcher.Constraint("Perpendicular", 62, 66))
sketch1.addConstraint(Sketcher.Constraint("Horizontal", 25, 3, 31, 3))
sketch1.addConstraint(Sketcher.Constraint("Horizontal", 23, 3, 33, 3))
sketch1.addConstraint(Sketcher.Constraint("Horizontal", 17, 3, 39, 3))
sketch1.addConstraint(Sketcher.Constraint("Horizontal", 15, 3, 41, 3))
sketch1.addConstraint(Sketcher.Constraint("Horizontal", 11, 3, 45, 3))
sketch1.addConstraint(Sketcher.Constraint("Horizontal", 9, 3, 47, 3))
sketch1.addConstraint(Sketcher.Constraint("Horizontal", 7, 3, 49, 3))
sketch1.addConstraint(Sketcher.Constraint("Horizontal", 3, 3, 53, 3))
sketch1.addConstraint(Sketcher.Constraint("Horizontal", 1, 3, 55, 3))
sketch1.addConstraint(Sketcher.Constraint("Horizontal", 61, 3, 67, 3))
sketch1.addConstraint(Sketcher.Constraint("Horizontal", 26, 2, 29, 2))
sketch1.addConstraint(Sketcher.Constraint("Vertical", 7, 3, 13, 3))
sketch1.addConstraint(Sketcher.Constraint("Vertical", 5, 3, 15, 3))
sketch1.addConstraint(Sketcher.Constraint("Vertical", 41, 3, 51, 3))
sketch1.addConstraint(Sketcher.Constraint("Vertical", 35, 3, 57, 3))
sketch1.addConstraint(Sketcher.Constraint("Vertical", 33, 3, 59, 3))
sketch1.addConstraint(Sketcher.Constraint("Vertical", 29, 3, 63, 3))
sketch1.addConstraint(Sketcher.Constraint("Vertical", 27, 3, 65, 3))
sketch1.addConstraint(Sketcher.Constraint("Vertical", 21, 3, 71, 3))
sketch1.addConstraint(Sketcher.Constraint("Equal", 22, 34))
sketch1.addConstraint(Sketcher.Constraint("Equal", 20, 36))
sketch1.addConstraint(Sketcher.Constraint("Equal", 14, 42))
sketch1.addConstraint(Sketcher.Constraint("Equal", 56, 2))
sketch1.addConstraint(Sketcher.Constraint("Equal", 70, 4))
sketch1.addConstraint(Sketcher.Constraint("Equal", 64, 10))
sketch1.addConstraint(Sketcher.Constraint("Equal", 4, 16))
sketch1.addConstraint(Sketcher.Constraint("Equal", 2, 18))
sketch1.addConstraint(Sketcher.Constraint("Equal", 50, 24))
sketch1.addConstraint(Sketcher.Constraint("Equal", 32, 60))
sketch1.addConstraint(Sketcher.Constraint("Equal", 12, 26))
sketch1.addConstraint(Sketcher.Constraint("Radius", 1, Q("2 mm")))
sketch1.addConstraint(Sketcher.Constraint("Radius", 9, Q("3 mm")))
sketch1.addConstraint(Sketcher.Constraint("Radius", 3, Q("0.9 mm")))
sketch1.addConstraint(Sketcher.Constraint("Radius", 5, Q("0.5 mm")))
sketch1.addConstraint(Sketcher.Constraint("DistanceX", 0, 2, 0, 1, Q("4.9 mm")))
sketch1.addConstraint(Sketcher.Constraint("DistanceX", 28, 1, 28, 2, Q("3.900958 mm")))
sketch1.addConstraint(Sketcher.Constraint("DistanceY", -1, 1, 12, 2, Q("26.320501 mm")))
sketch1.addConstraint(Sketcher.Constraint("DistanceX", 6, 1, 6, 2, Q("0.404927 mm")))
sketch1.addConstraint(Sketcher.Constraint("DistanceX", 22, 2, 22, 1, Q("2.781086 mm")))
sketch1.addConstraint(Sketcher.Constraint("DistanceY", -1, 1, 1, 3, Q("12.085862 mm")))
sketch1.addConstraint(Sketcher.Constraint("DistanceX", -1, 1, 23, 3, Q("1.076162 mm")))
pad1 = body.newObject("PartDesign::Pad", "Pad")
pad1.Profile = sketch1
pad1.Length = 70
pad1.Reversed = True

doc.recompute()
